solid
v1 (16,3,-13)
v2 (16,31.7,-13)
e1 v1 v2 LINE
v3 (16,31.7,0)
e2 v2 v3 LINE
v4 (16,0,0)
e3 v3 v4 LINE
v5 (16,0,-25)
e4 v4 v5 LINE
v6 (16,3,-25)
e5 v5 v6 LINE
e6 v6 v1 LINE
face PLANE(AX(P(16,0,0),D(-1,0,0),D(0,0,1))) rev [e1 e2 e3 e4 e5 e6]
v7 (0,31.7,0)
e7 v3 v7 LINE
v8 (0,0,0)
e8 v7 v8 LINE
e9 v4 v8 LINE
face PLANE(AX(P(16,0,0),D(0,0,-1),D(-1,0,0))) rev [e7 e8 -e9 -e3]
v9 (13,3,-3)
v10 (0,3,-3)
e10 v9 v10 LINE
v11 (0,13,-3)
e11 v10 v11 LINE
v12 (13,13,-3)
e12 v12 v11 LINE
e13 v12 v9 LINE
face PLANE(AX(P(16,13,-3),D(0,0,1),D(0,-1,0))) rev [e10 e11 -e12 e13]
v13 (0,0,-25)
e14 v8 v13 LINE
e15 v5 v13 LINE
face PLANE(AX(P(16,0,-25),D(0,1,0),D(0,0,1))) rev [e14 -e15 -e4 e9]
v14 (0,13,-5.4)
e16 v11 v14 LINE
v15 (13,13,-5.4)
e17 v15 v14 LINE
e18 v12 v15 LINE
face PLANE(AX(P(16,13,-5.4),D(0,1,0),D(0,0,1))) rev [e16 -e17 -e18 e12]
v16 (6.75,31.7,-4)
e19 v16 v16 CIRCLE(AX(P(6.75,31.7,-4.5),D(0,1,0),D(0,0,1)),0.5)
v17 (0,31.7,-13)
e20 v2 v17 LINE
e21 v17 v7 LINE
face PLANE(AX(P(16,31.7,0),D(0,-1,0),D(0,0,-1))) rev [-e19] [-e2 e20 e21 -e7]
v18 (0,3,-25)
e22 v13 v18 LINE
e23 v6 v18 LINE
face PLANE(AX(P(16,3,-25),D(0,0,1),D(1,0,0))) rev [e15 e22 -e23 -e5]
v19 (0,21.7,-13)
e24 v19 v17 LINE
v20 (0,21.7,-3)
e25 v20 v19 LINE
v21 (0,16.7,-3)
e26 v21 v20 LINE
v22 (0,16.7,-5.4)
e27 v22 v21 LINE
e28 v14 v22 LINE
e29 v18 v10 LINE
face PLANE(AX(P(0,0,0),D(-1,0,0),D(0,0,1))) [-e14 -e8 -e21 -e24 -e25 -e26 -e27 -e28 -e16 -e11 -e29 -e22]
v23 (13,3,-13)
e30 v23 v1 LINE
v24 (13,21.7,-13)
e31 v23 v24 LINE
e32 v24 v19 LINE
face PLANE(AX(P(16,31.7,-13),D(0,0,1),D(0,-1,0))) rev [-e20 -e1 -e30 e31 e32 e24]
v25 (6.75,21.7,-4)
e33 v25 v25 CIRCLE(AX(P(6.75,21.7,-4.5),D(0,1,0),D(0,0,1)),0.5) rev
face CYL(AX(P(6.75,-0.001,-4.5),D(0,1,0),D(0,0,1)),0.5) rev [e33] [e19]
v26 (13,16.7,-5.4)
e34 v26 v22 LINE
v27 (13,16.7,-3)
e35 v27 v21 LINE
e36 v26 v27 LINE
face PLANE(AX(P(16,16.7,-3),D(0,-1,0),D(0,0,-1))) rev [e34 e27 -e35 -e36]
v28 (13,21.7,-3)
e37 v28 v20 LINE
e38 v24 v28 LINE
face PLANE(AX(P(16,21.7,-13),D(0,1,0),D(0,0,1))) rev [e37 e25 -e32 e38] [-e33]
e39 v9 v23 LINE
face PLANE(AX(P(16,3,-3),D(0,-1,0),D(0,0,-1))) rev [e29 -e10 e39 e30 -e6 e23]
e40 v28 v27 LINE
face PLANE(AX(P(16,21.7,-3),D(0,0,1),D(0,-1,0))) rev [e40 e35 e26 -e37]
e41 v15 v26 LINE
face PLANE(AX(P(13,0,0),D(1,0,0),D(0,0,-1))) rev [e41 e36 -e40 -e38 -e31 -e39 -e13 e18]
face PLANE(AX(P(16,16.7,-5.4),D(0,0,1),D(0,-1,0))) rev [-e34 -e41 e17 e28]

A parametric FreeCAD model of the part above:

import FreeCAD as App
import Part
import Sketcher
from FreeCAD import Vector


def add_polygon(sketch, points):
    """Adds a closed chain of lines whose ends are joined by coincident constraints."""
    first, n = sketch.GeometryCount, len(points)
    for a, b in zip(points, points[1:] + points[:1]):
        sketch.addGeometry(Part.LineSegment(App.Vector(*a, 0), App.Vector(*b, 0)), False)
    for i in range(n):
        sketch.addConstraint(Sketcher.Constraint("Coincident", first + i, 2, first + (i + 1) % n, 1))

doc = App.newDocument("Part")
body = doc.addObject("PartDesign::Body", "Body")

sketch1 = body.newObject("Sketcher::SketchObject", "Sketch")
sketch1.AttachmentSupport = (doc.getObject("YZ_Plane"), [""])
sketch1.MapMode = "FlatFace"
add_polygon(sketch1, [(0, 0), (0, -25), (3, -25), (3, -3), (13, -3), (13, -5.4), (16.7, -5.4), (16.7, -3), (21.7, -3), (21.7, -13), (31.7, -13), (31.7, 0)])
sketch1.addConstraint([
    Sketcher.Constraint("Vertical", 0),
    Sketcher.Constraint("Horizontal", 1),
    Sketcher.Constraint("Vertical", 2),
    Sketcher.Constraint("Horizontal", 3),
    Sketcher.Constraint("Vertical", 4),
    Sketcher.Constraint("Horizontal", 5),
    Sketcher.Constraint("Vertical", 6),
    Sketcher.Constraint("Horizontal", 7),
    Sketcher.Constraint("Vertical", 8),
    Sketcher.Constraint("Horizontal", 9),
    Sketcher.Constraint("Vertical", 10),
    Sketcher.Constraint("Horizontal", 11),
    Sketcher.Constraint("Coincident", 11, 2, -1, 1),
    Sketcher.Constraint("Horizontal", 3, 2, 6, 2),
    Sketcher.Constraint("Equal", 3, 9),
    Sketcher.Constraint("Equal", 9, 8),
    Sketcher.Constraint("DistanceX", 1, 1, 1, 2, 3.0),
    Sketcher.Constraint("DistanceX", 3, 1, 3, 2, 10.0),
    Sketcher.Constraint("DistanceX", 7, 1, 7, 2, 5.0),
    Sketcher.Constraint("DistanceY", 0, 2, 0, 1, 25.0),
    Sketcher.Constraint("DistanceY", 2, 1, 2, 2, 22.0),
    Sketcher.Constraint("DistanceX", 5, 1, 5, 2, 3.7),
    Sketcher.Constraint("DistanceY", 4, 2, 4, 1, 2.4),
])
pad1 = body.newObject("PartDesign::Pad", "Pad")
pad1.Profile = sketch1
pad1.Length = 16

sketch2 = body.newObject("Sketcher::SketchObject", "Sketch001")
sketch2.AttachmentSupport = (doc.getObject("YZ_Plane"), [""])
sketch2.MapMode = "FlatFace"
sketch2.AttachmentOffset = App.Placement(Vector(0, 0, 16), App.Rotation())
add_polygon(sketch2, [(22, -3), (3, -3), (3, -13), (22, -13)])
sketch2.addConstraint([
    Sketcher.Constraint("Horizontal", 0),
    Sketcher.Constraint("Vertical", 1),
    Sketcher.Constraint("Horizontal", 2),
    Sketcher.Constraint("Vertical", 3),
    Sketcher.Constraint("DistanceY", 1, 2, 1, 1, 10.0),
    Sketcher.Constraint("DistanceX", 0, 2, 0, 1, 18.7),
    Sketcher.Constraint("DistanceX", -1, 1, 0, 2, 3.0),
    Sketcher.Constraint("DistanceY", 0, 2, -1, 1, 3.0),
])
pad2 = body.newObject("PartDesign::Pad", "Pad001")
pad2.Profile = sketch2
pad2.Length = 3
pad2.Reversed = True

sketch3 = body.newObject("Sketcher::SketchObject", "Sketch002")
sketch3.AttachmentSupport = (doc.getObject("XZ_Plane"), [""])
sketch3.MapMode = "FlatFace"
sketch3.AttachmentOffset = App.Placement(Vector(0, 0, -31.7), App.Rotation())
sketch3.addGeometry(Part.Circle(Vector(6.8, -4.5, 0), Vector(0, 0, 1), 0.5), False)
sketch3.addConstraint([
    Sketcher.Constraint("Diameter", 0, 1.0),
    Sketcher.Constraint("DistanceY", 0, 3, -1, 1, 4.5),
    Sketcher.Constraint("DistanceX", -1, 1, 0, 3, 6.75),
])
pocket1 = body.newObject("PartDesign::Pocket", "Pocket")
pocket1.Profile = sketch3
pocket1.Type = "UpToFirst"
pocket1.Reversed = True

doc.recompute()
